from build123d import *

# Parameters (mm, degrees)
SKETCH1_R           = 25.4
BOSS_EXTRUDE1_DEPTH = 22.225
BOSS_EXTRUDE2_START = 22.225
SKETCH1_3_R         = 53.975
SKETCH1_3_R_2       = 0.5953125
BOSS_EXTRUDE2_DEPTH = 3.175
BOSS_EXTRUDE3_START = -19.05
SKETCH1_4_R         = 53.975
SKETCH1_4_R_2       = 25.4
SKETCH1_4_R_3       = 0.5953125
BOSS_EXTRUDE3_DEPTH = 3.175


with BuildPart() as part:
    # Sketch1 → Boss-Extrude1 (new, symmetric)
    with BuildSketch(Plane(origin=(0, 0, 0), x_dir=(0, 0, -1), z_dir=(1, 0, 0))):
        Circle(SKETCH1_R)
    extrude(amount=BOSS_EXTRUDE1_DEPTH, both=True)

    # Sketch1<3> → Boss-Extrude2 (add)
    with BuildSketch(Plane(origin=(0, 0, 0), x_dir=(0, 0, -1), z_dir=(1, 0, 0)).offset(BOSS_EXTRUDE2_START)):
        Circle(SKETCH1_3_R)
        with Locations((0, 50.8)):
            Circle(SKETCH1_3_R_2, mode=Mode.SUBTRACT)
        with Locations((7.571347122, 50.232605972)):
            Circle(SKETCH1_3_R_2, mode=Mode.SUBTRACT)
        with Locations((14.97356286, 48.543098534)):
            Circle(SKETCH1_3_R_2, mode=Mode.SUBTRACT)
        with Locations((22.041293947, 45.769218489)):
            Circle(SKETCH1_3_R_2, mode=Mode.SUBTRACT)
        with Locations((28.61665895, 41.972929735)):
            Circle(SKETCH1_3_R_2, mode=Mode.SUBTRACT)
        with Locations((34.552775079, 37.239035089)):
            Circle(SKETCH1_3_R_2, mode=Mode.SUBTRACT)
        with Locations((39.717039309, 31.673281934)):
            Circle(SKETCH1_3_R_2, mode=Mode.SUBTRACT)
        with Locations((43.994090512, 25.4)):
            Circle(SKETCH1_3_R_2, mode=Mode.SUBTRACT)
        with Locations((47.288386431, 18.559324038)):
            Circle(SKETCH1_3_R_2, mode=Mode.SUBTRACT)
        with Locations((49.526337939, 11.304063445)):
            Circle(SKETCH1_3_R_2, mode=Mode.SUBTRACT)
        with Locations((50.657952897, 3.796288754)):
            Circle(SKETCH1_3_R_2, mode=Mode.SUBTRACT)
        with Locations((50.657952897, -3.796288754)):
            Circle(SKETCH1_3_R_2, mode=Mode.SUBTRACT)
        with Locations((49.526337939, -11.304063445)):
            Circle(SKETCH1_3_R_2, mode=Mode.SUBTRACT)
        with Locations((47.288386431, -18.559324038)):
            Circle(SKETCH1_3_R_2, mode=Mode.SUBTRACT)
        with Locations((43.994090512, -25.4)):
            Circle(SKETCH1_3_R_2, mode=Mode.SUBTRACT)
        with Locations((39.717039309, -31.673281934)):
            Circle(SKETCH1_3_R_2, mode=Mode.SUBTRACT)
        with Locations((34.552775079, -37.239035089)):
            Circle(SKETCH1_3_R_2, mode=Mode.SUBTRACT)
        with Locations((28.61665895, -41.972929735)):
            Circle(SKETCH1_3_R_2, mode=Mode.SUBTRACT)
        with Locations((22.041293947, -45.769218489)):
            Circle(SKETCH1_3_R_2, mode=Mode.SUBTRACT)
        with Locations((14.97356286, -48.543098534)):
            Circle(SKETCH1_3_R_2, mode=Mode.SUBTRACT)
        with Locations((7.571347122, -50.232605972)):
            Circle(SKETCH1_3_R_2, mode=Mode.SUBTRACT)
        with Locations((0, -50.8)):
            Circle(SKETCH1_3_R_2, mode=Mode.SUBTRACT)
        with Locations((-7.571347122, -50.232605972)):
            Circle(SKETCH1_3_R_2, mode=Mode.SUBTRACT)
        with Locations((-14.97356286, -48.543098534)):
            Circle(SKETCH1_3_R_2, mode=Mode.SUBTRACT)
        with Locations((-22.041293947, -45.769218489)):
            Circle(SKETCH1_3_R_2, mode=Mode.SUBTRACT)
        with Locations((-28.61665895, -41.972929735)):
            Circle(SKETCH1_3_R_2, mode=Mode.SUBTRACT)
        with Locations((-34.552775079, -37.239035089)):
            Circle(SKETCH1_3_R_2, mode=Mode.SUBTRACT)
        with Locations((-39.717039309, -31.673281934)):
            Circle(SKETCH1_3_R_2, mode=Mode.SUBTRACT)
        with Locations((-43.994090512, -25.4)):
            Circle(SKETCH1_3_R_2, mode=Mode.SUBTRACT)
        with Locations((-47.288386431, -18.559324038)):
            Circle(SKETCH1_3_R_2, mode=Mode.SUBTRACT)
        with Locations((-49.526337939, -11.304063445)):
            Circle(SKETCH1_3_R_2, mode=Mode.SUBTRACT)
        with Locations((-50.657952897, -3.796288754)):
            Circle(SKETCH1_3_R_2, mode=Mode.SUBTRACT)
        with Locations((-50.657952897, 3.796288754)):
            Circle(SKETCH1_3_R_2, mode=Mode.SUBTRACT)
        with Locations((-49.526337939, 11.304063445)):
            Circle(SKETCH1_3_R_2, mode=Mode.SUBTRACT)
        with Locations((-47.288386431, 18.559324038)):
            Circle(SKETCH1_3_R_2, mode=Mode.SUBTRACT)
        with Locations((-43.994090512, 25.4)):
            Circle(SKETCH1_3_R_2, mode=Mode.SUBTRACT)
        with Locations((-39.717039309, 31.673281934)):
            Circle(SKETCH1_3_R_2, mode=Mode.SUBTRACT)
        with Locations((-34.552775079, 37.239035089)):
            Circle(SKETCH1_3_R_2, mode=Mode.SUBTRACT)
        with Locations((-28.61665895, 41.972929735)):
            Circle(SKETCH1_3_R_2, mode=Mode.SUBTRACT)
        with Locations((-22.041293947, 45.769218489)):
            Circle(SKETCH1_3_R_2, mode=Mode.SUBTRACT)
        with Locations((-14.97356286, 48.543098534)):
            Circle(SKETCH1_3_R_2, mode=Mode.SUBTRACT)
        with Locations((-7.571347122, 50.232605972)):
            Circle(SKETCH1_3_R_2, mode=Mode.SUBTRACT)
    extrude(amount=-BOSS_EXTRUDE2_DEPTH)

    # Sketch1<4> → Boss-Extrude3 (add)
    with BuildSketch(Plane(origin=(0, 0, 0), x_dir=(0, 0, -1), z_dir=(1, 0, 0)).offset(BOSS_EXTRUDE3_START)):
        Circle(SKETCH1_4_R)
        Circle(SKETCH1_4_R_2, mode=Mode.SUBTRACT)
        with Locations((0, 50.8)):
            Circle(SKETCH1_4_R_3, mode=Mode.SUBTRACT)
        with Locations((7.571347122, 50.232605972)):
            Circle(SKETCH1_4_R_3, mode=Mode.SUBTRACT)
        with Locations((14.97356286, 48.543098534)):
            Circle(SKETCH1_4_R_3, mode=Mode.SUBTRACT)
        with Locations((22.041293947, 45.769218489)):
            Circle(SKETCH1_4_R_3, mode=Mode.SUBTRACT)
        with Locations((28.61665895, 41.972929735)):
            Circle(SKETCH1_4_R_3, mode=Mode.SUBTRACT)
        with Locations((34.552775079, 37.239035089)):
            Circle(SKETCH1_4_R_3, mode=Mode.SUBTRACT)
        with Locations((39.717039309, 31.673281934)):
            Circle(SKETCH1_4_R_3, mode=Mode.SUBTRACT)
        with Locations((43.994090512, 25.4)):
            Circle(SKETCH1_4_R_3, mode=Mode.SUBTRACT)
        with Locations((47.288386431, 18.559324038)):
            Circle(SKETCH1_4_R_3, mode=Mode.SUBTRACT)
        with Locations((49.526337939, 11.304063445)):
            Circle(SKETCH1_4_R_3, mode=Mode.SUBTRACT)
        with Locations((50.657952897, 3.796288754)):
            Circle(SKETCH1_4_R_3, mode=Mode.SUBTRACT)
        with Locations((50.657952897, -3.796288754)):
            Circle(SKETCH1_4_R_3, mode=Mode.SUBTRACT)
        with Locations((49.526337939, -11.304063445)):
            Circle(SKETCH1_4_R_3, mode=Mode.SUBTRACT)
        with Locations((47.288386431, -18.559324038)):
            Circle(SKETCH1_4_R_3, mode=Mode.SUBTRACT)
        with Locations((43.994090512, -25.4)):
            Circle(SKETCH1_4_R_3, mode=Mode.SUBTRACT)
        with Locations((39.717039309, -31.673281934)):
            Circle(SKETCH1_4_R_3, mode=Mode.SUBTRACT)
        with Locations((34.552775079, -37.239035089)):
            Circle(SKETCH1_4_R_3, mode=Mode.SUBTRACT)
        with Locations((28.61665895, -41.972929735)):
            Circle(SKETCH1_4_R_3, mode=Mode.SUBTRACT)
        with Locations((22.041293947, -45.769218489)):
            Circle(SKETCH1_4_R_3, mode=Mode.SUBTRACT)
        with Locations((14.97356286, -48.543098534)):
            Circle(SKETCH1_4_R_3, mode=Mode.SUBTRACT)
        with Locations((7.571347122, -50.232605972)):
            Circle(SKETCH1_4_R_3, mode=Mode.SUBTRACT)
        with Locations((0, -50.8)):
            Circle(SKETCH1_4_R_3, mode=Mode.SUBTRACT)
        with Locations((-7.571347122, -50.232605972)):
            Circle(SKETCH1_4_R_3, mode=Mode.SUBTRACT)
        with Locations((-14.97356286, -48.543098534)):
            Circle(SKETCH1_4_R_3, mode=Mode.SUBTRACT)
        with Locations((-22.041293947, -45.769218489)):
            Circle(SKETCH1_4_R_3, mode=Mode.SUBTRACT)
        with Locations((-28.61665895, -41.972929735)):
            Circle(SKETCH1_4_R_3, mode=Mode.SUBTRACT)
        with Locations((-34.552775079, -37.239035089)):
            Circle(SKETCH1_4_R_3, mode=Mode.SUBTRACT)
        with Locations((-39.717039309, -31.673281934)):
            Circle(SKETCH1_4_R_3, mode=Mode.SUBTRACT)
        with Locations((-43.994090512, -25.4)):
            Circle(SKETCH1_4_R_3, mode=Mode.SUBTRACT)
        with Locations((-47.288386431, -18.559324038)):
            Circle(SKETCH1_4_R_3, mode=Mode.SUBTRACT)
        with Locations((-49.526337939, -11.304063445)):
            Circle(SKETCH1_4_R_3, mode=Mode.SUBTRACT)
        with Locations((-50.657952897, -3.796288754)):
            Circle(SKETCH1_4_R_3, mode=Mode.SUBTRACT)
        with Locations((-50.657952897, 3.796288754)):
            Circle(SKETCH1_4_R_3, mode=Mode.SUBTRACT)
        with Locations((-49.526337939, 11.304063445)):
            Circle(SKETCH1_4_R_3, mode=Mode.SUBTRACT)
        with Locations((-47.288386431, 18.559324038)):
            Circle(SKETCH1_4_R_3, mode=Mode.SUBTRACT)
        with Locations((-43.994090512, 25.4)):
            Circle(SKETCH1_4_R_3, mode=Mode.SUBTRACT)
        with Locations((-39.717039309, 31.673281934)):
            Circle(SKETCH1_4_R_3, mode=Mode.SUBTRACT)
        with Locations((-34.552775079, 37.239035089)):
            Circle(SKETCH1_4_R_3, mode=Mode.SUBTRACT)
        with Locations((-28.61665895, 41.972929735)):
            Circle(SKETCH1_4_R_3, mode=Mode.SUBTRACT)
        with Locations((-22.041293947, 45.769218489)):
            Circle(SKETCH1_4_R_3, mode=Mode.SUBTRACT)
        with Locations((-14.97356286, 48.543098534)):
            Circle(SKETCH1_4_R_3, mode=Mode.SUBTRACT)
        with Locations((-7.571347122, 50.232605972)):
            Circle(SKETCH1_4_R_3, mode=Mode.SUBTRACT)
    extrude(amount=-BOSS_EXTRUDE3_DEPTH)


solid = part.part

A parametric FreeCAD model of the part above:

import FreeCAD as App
import Part
import Sketcher
from FreeCAD import Vector
Q = App.Units.Quantity

doc = App.newDocument("Part")
body = doc.addObject("PartDesign::Body", "Body")

# Sketch on YZ plane
sketch1 = body.newObject("Sketcher::SketchObject", "Sketch")
sketch1.AttachmentSupport = (doc.getObject("YZ_Plane"), [""])
sketch1.MapMode = "FlatFace"
sketch1.addGeometry(Part.Circle(Vector(0, 0, 0), Vector(0, 0, 1), 25.4), False)
sketch1.addConstraint([
    Sketcher.Constraint("Coincident", 0, 3, -1, 1),
    Sketcher.Constraint("Diameter", 0, Q("2 in")),
])
pad1 = body.newObject("PartDesign::Pad", "Pad")
pad1.Profile = sketch1
pad1.Length = Q("1.75 in")
pad1.Midplane = True

# Sketch on YZ plane
sketch2 = body.newObject("Sketcher::SketchObject", "Sketch001")
sketch2.AttachmentSupport = (doc.getObject("YZ_Plane"), [""])
sketch2.MapMode = "FlatFace"
sketch2.AttachmentOffset = App.Placement(Vector(0, 0, 0.875 * 25.4), App.Rotation())
sketch2.addGeometry([
    Part.Circle(Vector(0, 0, 0), Vector(0, 0, 1), 53.975),  # 0
    Part.Circle(Vector(-41.97293, 28.616659, 0), Vector(0, 0, 1), 0.595313),  # 1
    Part.Circle(Vector(-31.673282, 39.717039, 0), Vector(0, 0, 1), 0.595313),  # 2
    Part.Circle(Vector(-37.239035, 34.552775, 0), Vector(0, 0, 1), 0.595313),  # 3
    Part.Circle(Vector(-45.769218, 22.041294, 0), Vector(0, 0, 1), 0.595313),  # 4
    Part.Circle(Vector(-48.543099, 14.973563, 0), Vector(0, 0, 1), 0.595313),  # 5
    Part.Circle(Vector(-50.232606, 7.571347, 0), Vector(0, 0, 1), 0.595313),  # 6
    Part.Circle(Vector(-50.8, 0, 0), Vector(0, 0, 1), 0.595313),  # 7
    Part.Circle(Vector(-25.4, 43.994091, 0), Vector(0, 0, 1), 0.595313),  # 8
    Part.Circle(Vector(-18.559324, 47.288386, 0), Vector(0, 0, 1), 0.595313),  # 9
    Part.Circle(Vector(-11.304063, 49.526338, 0), Vector(0, 0, 1), 0.595313),  # 10
    Part.Circle(Vector(-3.796289, 50.657953, 0), Vector(0, 0, 1), 0.595313),  # 11
    Part.Circle(Vector(-50.232606, -7.571347, 0), Vector(0, 0, 1), 0.595313),  # 12
    Part.Circle(Vector(-48.543099, -14.973563, 0), Vector(0, 0, 1), 0.595313),  # 13
    Part.Circle(Vector(-45.769218, -22.041294, 0), Vector(0, 0, 1), 0.595313),  # 14
    Part.Circle(Vector(-41.97293, -28.616659, 0), Vector(0, 0, 1), 0.595313),  # 15
    Part.Circle(Vector(-37.239035, -34.552775, 0), Vector(0, 0, 1), 0.595313),  # 16
    Part.Circle(Vector(-31.673282, -39.717039, 0), Vector(0, 0, 1), 0.595313),  # 17
    Part.Circle(Vector(-25.4, -43.994091, 0), Vector(0, 0, 1), 0.595313),  # 18
    Part.Circle(Vector(-18.559324, -47.288386, 0), Vector(0, 0, 1), 0.595313),  # 19
    Part.Circle(Vector(-11.304063, -49.526338, 0), Vector(0, 0, 1), 0.595313),  # 20
    Part.Circle(Vector(-3.796289, -50.657953, 0), Vector(0, 0, 1), 0.595313),  # 21
    Part.Circle(Vector(3.796289, 50.657953, 0), Vector(0, 0, 1), 0.595313),  # 22
    Part.Circle(Vector(11.304063, 49.526338, 0), Vector(0, 0, 1), 0.595313),  # 23
    Part.Circle(Vector(18.559324, 47.288386, 0), Vector(0, 0, 1), 0.595313),  # 24
    Part.Circle(Vector(25.4, 43.994091, 0), Vector(0, 0, 1), 0.595313),  # 25
    Part.Circle(Vector(31.673282, 39.717039, 0), Vector(0, 0, 1), 0.595313),  # 26
    Part.Circle(Vector(37.239035, 34.552775, 0), Vector(0, 0, 1), 0.595313),  # 27
    Part.Circle(Vector(41.97293, 28.616659, 0), Vector(0, 0, 1), 0.595313),  # 28
    Part.Circle(Vector(45.769218, 22.041294, 0), Vector(0, 0, 1), 0.595313),  # 29
    Part.Circle(Vector(48.543099, 14.973563, 0), Vector(0, 0, 1), 0.595313),  # 30
    Part.Circle(Vector(50.232606, 7.571347, 0), Vector(0, 0, 1), 0.595313),  # 31
    Part.Circle(Vector(50.8, 0, 0), Vector(0, 0, 1), 0.595313),  # 32
    Part.Circle(Vector(3.796289, -50.657953, 0), Vector(0, 0, 1), 0.595313),  # 33
    Part.Circle(Vector(11.304063, -49.526338, 0), Vector(0, 0, 1), 0.595313),  # 34
    Part.Circle(Vector(18.559324, -47.288386, 0), Vector(0, 0, 1), 0.595313),  # 35
    Part.Circle(Vector(25.4, -43.994091, 0), Vector(0, 0, 1), 0.595313),  # 36
    Part.Circle(Vector(50.232606, -7.571347, 0), Vector(0, 0, 1), 0.595313),  # 37
    Part.Circle(Vector(48.543099, -14.973563, 0), Vector(0, 0, 1), 0.595313),  # 38
    Part.Circle(Vector(45.769218, -22.041294, 0), Vector(0, 0, 1), 0.595313),  # 39
    Part.Circle(Vector(37.239035, -34.552775, 0), Vector(0, 0, 1), 0.595313),  # 40
    Part.Circle(Vector(31.673282, -39.717039, 0), Vector(0, 0, 1), 0.595313),  # 41
    Part.Circle(Vector(41.97293, -28.616659, 0), Vector(0, 0, 1), 0.595313),  # 42
], False)
sketch2.addConstraint([
    Sketcher.Constraint("Coincident", 0, 3, -1, 1),
    Sketcher.Constraint("Equal", 1, 2),
    Sketcher.Constraint("Equal", 2, 3),
    Sketcher.Constraint("Equal", 3, 4),
    Sketcher.Constraint("Equal", 4, 5),
    Sketcher.Constraint("Equal", 5, 6),
    Sketcher.Constraint("Equal", 6, 7),
    Sketcher.Constraint("Equal", 7, 8),
    Sketcher.Constraint("Equal", 8, 9),
    Sketcher.Constraint("Equal", 9, 10),
    Sketcher.Constraint("Equal", 10, 11),
    Sketcher.Constraint("Equal", 11, 12),
    Sketcher.Constraint("Equal", 12, 13),
    Sketcher.Constraint("Equal", 13, 14),
    Sketcher.Constraint("Equal", 14, 15),
    Sketcher.Constraint("Equal", 15, 16),
    Sketcher.Constraint("Equal", 16, 17),
    Sketcher.Constraint("Equal", 17, 18),
    Sketcher.Constraint("Equal", 18, 19),
    Sketcher.Constraint("Equal", 19, 20),
    Sketcher.Constraint("Equal", 20, 21),
    Sketcher.Constraint("Equal", 21, 22),
    Sketcher.Constraint("Equal", 22, 23),
    Sketcher.Constraint("Equal", 23, 24),
    Sketcher.Constraint("Equal", 24, 25),
    Sketcher.Constraint("Equal", 25, 26),
    Sketcher.Constraint("Equal", 26, 27),
    Sketcher.Constraint("Equal", 27, 28),
    Sketcher.Constraint("Equal", 28, 29),
    Sketcher.Constraint("Equal", 29, 30),
    Sketcher.Constraint("Equal", 30, 31),
    Sketcher.Constraint("Equal", 31, 32),
    Sketcher.Constraint("Equal", 32, 33),
    Sketcher.Constraint("Equal", 33, 34),
    Sketcher.Constraint("Equal", 34, 35),
    Sketcher.Constraint("Equal", 35, 36),
    Sketcher.Constraint("Equal", 36, 37),
    Sketcher.Constraint("Equal", 37, 38),
    Sketcher.Constraint("Equal", 38, 39),
    Sketcher.Constraint("Equal", 39, 40),
    Sketcher.Constraint("Equal", 40, 41),
    Sketcher.Constraint("Equal", 41, 42),
    Sketcher.Constraint("Symmetric", 21, 3, 22, 3, -1, 1),
    Sketcher.Constraint("Symmetric", 20, 3, 23, 3, -1, 1),
    Sketcher.Constraint("Symmetric", 19, 3, 24, 3, -1, 1),
    Sketcher.Constraint("Symmetric", 18, 3, 25, 3, -1, 1),
    Sketcher.Constraint("Symmetric", 17, 3, 26, 3, -1, 1),
    Sketcher.Constraint("Symmetric", 16, 3, 27, 3, -1, 1),
    Sketcher.Constraint("Symmetric", 15, 3, 28, 3, -1, 1),
    Sketcher.Constraint("Symmetric", 14, 3, 29, 3, -1, 1),
    Sketcher.Constraint("Symmetric", 13, 3, 30, 3, -1, 1),
    Sketcher.Constraint("Symmetric", 12, 3, 31, 3, -1, 1),
    Sketcher.Constraint("Symmetric", 7, 3, 32, 3, -1, 1),
    Sketcher.Constraint("Symmetric", 11, 3, 33, 3, -1, 1),
    Sketcher.Constraint("Symmetric", 10, 3, 34, 3, -1, 1),
    Sketcher.Constraint("Symmetric", 9, 3, 35, 3, -1, 1),
    Sketcher.Constraint("Symmetric", 8, 3, 36, 3, -1, 1),
    Sketcher.Constraint("Symmetric", 6, 3, 37, 3, -1, 1),
    Sketcher.Constraint("Symmetric", 5, 3, 38, 3, -1, 1),
    Sketcher.Constraint("Symmetric", 4, 3, 39, 3, -1, 1),
    Sketcher.Constraint("Symmetric", 3, 3, 40, 3, -1, 1),
    Sketcher.Constraint("Symmetric", 2, 3, 41, 3, -1, 1),
    Sketcher.Constraint("Symmetric", 1, 3, 42, 3, -1, 1),
    Sketcher.Constraint("Symmetric", 11, 3, 22, 3, -2),
    Sketcher.Constraint("Symmetric", 10, 3, 23, 3, -2),
    Sketcher.Constraint("Symmetric", 9, 3, 24, 3, -2),
    Sketcher.Constraint("Symmetric", 8, 3, 25, 3, -2),
    Sketcher.Constraint("Symmetric", 2, 3, 26, 3, -2),
    Sketcher.Constraint("Symmetric", 3, 3, 27, 3, -2),
    Sketcher.Constraint("Symmetric", 1, 3, 28, 3, -2),
    Sketcher.Constraint("Symmetric", 4, 3, 29, 3, -2),
    Sketcher.Constraint("Symmetric", 5, 3, 30, 3, -2),
    Sketcher.Constraint("Symmetric", 6, 3, 31, 3, -2),
    Sketcher.Constraint("PointOnObject", 7, 3, -1),
    Sketcher.Constraint("Diameter", 0, Q("4.25 in")),
    Sketcher.Constraint("Diameter", 1, Q("0.046875 in")),
    Sketcher.Constraint("DistanceX", 7, 3, -1, 1, Q("2 in")),
    Sketcher.Constraint("DistanceX", 8, 3, -1, 1, Q("1 in")),
    Sketcher.Constraint("DistanceX", 5, 3, -1, 1, Q("48.543099 mm")),
    Sketcher.Constraint("DistanceY", 2, 3, 10, 3, Q("9.809299 mm")),
    Sketcher.Constraint("DistanceX", 1, 3, -1, 1, Q("41.97293 mm")),
    Sketcher.Constraint("DistanceY", -1, 1, 1, 3, Q("28.616659 mm")),
    Sketcher.Constraint("DistanceX", 2, 3, -1, 1, Q("31.673282 mm")),
    Sketcher.Constraint("DistanceY", -1, 1, 2, 3, Q("39.717039 mm")),
    Sketcher.Constraint("DistanceX", 4, 3, -1, 1, Q("45.769218 mm")),
    Sketcher.Constraint("DistanceY", -1, 1, 8, 3, Q("43.994091 mm")),
    Sketcher.Constraint("DistanceX", 11, 3, -1, 1, Q("3.796289 mm")),
    Sketcher.Constraint("DistanceY", 4, 3, 3, 3, Q("12.511481 mm")),
    Sketcher.Constraint("DistanceY", 5, 3, 4, 3, Q("7.067731 mm")),
    Sketcher.Constraint("DistanceY", 6, 3, 1, 3, Q("21.045312 mm")),
    Sketcher.Constraint("DistanceX", 6, 3, 3, 3, Q("12.993571 mm")),
    Sketcher.Constraint("DistanceX", 3, 3, 9, 3, Q("18.679711 mm")),
    Sketcher.Constraint("DistanceY", 3, 3, 9, 3, Q("12.735611 mm")),
    Sketcher.Constraint("DistanceX", 9, 3, 10, 3, Q("7.255261 mm")),
    Sketcher.Constraint("DistanceY", 9, 3, 10, 3, Q("2.237952 mm")),
    Sketcher.Constraint("DistanceX", 2, 3, 10, 3, Q("20.369218 mm")),
    Sketcher.Constraint("DistanceY", -1, 1, 11, 3, Q("50.657953 mm")),
])
pad2 = body.newObject("PartDesign::Pad", "Pad001")
pad2.Profile = sketch2
pad2.Length = Q("0.125 in")
pad2.Reversed = True

# Sketch on YZ plane
sketch3 = body.newObject("Sketcher::SketchObject", "Sketch002")
sketch3.AttachmentSupport = (doc.getObject("YZ_Plane"), [""])
sketch3.MapMode = "FlatFace"
sketch3.AttachmentOffset = App.Placement(Vector(0, 0, -0.75 * 25.4), App.Rotation())
sketch3.addGeometry([
    Part.Circle(Vector(0, 0, 0), Vector(0, 0, 1), 53.975),  # 0
    Part.Circle(Vector(-41.97293, 28.616659, 0), Vector(0, 0, 1), 0.595313),  # 1
    Part.Circle(Vector(-31.673282, 39.717039, 0), Vector(0, 0, 1), 0.595313),  # 2
    Part.Circle(Vector(-37.239035, 34.552775, 0), Vector(0, 0, 1), 0.595313),  # 3
    Part.Circle(Vector(-45.769218, 22.041294, 0), Vector(0, 0, 1), 0.595313),  # 4
    Part.Circle(Vector(-48.543099, 14.973563, 0), Vector(0, 0, 1), 0.595313),  # 5
    Part.Circle(Vector(-50.232606, 7.571347, 0), Vector(0, 0, 1), 0.595313),  # 6
    Part.Circle(Vector(-50.8, 0, 0), Vector(0, 0, 1), 0.595313),  # 7
    Part.Circle(Vector(-25.4, 43.994091, 0), Vector(0, 0, 1), 0.595313),  # 8
    Part.Circle(Vector(-18.559324, 47.288386, 0), Vector(0, 0, 1), 0.595313),  # 9
    Part.Circle(Vector(-11.304063, 49.526338, 0), Vector(0, 0, 1), 0.595313),  # 10
    Part.Circle(Vector(-3.796289, 50.657953, 0), Vector(0, 0, 1), 0.595313),  # 11
    Part.Circle(Vector(-50.232606, -7.571347, 0), Vector(0, 0, 1), 0.595313),  # 12
    Part.Circle(Vector(-48.543099, -14.973563, 0), Vector(0, 0, 1), 0.595313),  # 13
    Part.Circle(Vector(-45.769218, -22.041294, 0), Vector(0, 0, 1), 0.595313),  # 14
    Part.Circle(Vector(-41.97293, -28.616659, 0), Vector(0, 0, 1), 0.595313),  # 15
    Part.Circle(Vector(-37.239035, -34.552775, 0), Vector(0, 0, 1), 0.595313),  # 16
    Part.Circle(Vector(-31.673282, -39.717039, 0), Vector(0, 0, 1), 0.595313),  # 17
    Part.Circle(Vector(-25.4, -43.994091, 0), Vector(0, 0, 1), 0.595313),  # 18
    Part.Circle(Vector(-18.559324, -47.288386, 0), Vector(0, 0, 1), 0.595313),  # 19
    Part.Circle(Vector(-11.304063, -49.526338, 0), Vector(0, 0, 1), 0.595313),  # 20
    Part.Circle(Vector(-3.796289, -50.657953, 0), Vector(0, 0, 1), 0.595313),  # 21
    Part.Circle(Vector(3.796289, 50.657953, 0), Vector(0, 0, 1), 0.595313),  # 22
    Part.Circle(Vector(11.304063, 49.526338, 0), Vector(0, 0, 1), 0.595313),  # 23
    Part.Circle(Vector(18.559324, 47.288386, 0), Vector(0, 0, 1), 0.595313),  # 24
    Part.Circle(Vector(25.4, 43.994091, 0), Vector(0, 0, 1), 0.595313),  # 25
    Part.Circle(Vector(31.673282, 39.717039, 0), Vector(0, 0, 1), 0.595313),  # 26
    Part.Circle(Vector(37.239035, 34.552775, 0), Vector(0, 0, 1), 0.595313),  # 27
    Part.Circle(Vector(41.97293, 28.616659, 0), Vector(0, 0, 1), 0.595313),  # 28
    Part.Circle(Vector(45.769218, 22.041294, 0), Vector(0, 0, 1), 0.595313),  # 29
    Part.Circle(Vector(48.543099, 14.973563, 0), Vector(0, 0, 1), 0.595313),  # 30
    Part.Circle(Vector(50.232606, 7.571347, 0), Vector(0, 0, 1), 0.595313),  # 31
    Part.Circle(Vector(50.8, 0, 0), Vector(0, 0, 1), 0.595313),  # 32
    Part.Circle(Vector(0, 0, 0), Vector(0, 0, 1), 25.4),  # 33
    Part.Circle(Vector(3.796289, -50.657953, 0), Vector(0, 0, 1), 0.595313),  # 34
    Part.Circle(Vector(11.304063, -49.526338, 0), Vector(0, 0, 1), 0.595313),  # 35
    Part.Circle(Vector(18.559324, -47.288386, 0), Vector(0, 0, 1), 0.595313),  # 36
    Part.Circle(Vector(25.4, -43.994091, 0), Vector(0, 0, 1), 0.595313),  # 37
    Part.Circle(Vector(50.232606, -7.571347, 0), Vector(0, 0, 1), 0.595313),  # 38
    Part.Circle(Vector(48.543099, -14.973563, 0), Vector(0, 0, 1), 0.595313),  # 39
    Part.Circle(Vector(45.769218, -22.041294, 0), Vector(0, 0, 1), 0.595313),  # 40
    Part.Circle(Vector(37.239035, -34.552775, 0), Vector(0, 0, 1), 0.595313),  # 41
    Part.Circle(Vector(31.673282, -39.717039, 0), Vector(0, 0, 1), 0.595313),  # 42
    Part.Circle(Vector(41.97293, -28.616659, 0), Vector(0, 0, 1), 0.595313),  # 43
], False)
sketch3.addConstraint([
    Sketcher.Constraint("Coincident", 0, 3, -1, 1),
    Sketcher.Constraint("Coincident", 33, 3, -1, 1),
    Sketcher.Constraint("Equal", 1, 2),
    Sketcher.Constraint("Equal", 2, 3),
    Sketcher.Constraint("Equal", 3, 4),
    Sketcher.Constraint("Equal", 4, 5),
    Sketcher.Constraint("Equal", 5, 6),
    Sketcher.Constraint("Equal", 6, 7),
    Sketcher.Constraint("Equal", 7, 8),
    Sketcher.Constraint("Equal", 8, 9),
    Sketcher.Constraint("Equal", 9, 10),
    Sketcher.Constraint("Equal", 10, 11),
    Sketcher.Constraint("Equal", 11, 12),
    Sketcher.Constraint("Equal", 12, 13),
    Sketcher.Constraint("Equal", 13, 14),
    Sketcher.Constraint("Equal", 14, 15),
    Sketcher.Constraint("Equal", 15, 16),
    Sketcher.Constraint("Equal", 16, 17),
    Sketcher.Constraint("Equal", 17, 18),
    Sketcher.Constraint("Equal", 18, 19),
    Sketcher.Constraint("Equal", 19, 20),
    Sketcher.Constraint("Equal", 20, 21),
    Sketcher.Constraint("Equal", 21, 22),
    Sketcher.Constraint("Equal", 22, 23),
    Sketcher.Constraint("Equal", 23, 24),
    Sketcher.Constraint("Equal", 24, 25),
    Sketcher.Constraint("Equal", 25, 26),
    Sketcher.Constraint("Equal", 26, 27),
    Sketcher.Constraint("Equal", 27, 28),
    Sketcher.Constraint("Equal", 28, 29),
    Sketcher.Constraint("Equal", 29, 30),
    Sketcher.Constraint("Equal", 30, 31),
    Sketcher.Constraint("Equal", 31, 32),
    Sketcher.Constraint("Equal", 32, 34),
    Sketcher.Constraint("Equal", 34, 35),
    Sketcher.Constraint("Equal", 35, 36),
    Sketcher.Constraint("Equal", 36, 37),
    Sketcher.Constraint("Equal", 37, 38),
    Sketcher.Constraint("Equal", 38, 39),
    Sketcher.Constraint("Equal", 39, 40),
    Sketcher.Constraint("Equal", 40, 41),
    Sketcher.Constraint("Equal", 41, 42),
    Sketcher.Constraint("Equal", 42, 43),
    Sketcher.Constraint("Symmetric", 21, 3, 22, 3, -1, 1),
    Sketcher.Constraint("Symmetric", 20, 3, 23, 3, -1, 1),
    Sketcher.Constraint("Symmetric", 19, 3, 24, 3, -1, 1),
    Sketcher.Constraint("Symmetric", 18, 3, 25, 3, -1, 1),
    Sketcher.Constraint("Symmetric", 17, 3, 26, 3, -1, 1),
    Sketcher.Constraint("Symmetric", 16, 3, 27, 3, -1, 1),
    Sketcher.Constraint("Symmetric", 15, 3, 28, 3, -1, 1),
    Sketcher.Constraint("Symmetric", 14, 3, 29, 3, -1, 1),
    Sketcher.Constraint("Symmetric", 13, 3, 30, 3, -1, 1),
    Sketcher.Constraint("Symmetric", 12, 3, 31, 3, -1, 1),
    Sketcher.Constraint("Symmetric", 7, 3, 32, 3, -1, 1),
    Sketcher.Constraint("Symmetric", 11, 3, 34, 3, -1, 1),
    Sketcher.Constraint("Symmetric", 10, 3, 35, 3, -1, 1),
    Sketcher.Constraint("Symmetric", 9, 3, 36, 3, -1, 1),
    Sketcher.Constraint("Symmetric", 8, 3, 37, 3, -1, 1),
    Sketcher.Constraint("Symmetric", 6, 3, 38, 3, -1, 1),
    Sketcher.Constraint("Symmetric", 5, 3, 39, 3, -1, 1),
    Sketcher.Constraint("Symmetric", 4, 3, 40, 3, -1, 1),
    Sketcher.Constraint("Symmetric", 3, 3, 41, 3, -1, 1),
    Sketcher.Constraint("Symmetric", 2, 3, 42, 3, -1, 1),
    Sketcher.Constraint("Symmetric", 1, 3, 43, 3, -1, 1),
    Sketcher.Constraint("Symmetric", 11, 3, 22, 3, -2),
    Sketcher.Constraint("Symmetric", 10, 3, 23, 3, -2),
    Sketcher.Constraint("Symmetric", 9, 3, 24, 3, -2),
    Sketcher.Constraint("Symmetric", 8, 3, 25, 3, -2),
    Sketcher.Constraint("Symmetric", 2, 3, 26, 3, -2),
    Sketcher.Constraint("Symmetric", 3, 3, 27, 3, -2),
    Sketcher.Constraint("Symmetric", 1, 3, 28, 3, -2),
    Sketcher.Constraint("Symmetric", 4, 3, 29, 3, -2),
    Sketcher.Constraint("Symmetric", 5, 3, 30, 3, -2),
    Sketcher.Constraint("Symmetric", 6, 3, 31, 3, -2),
    Sketcher.Constraint("PointOnObject", 7, 3, -1),
    Sketcher.Constraint("Diameter", 33, Q("2 in")),
    Sketcher.Constraint("Diameter", 0, Q("4.25 in")),
    Sketcher.Constraint("Diameter", 1, Q("0.046875 in")),
    Sketcher.Constraint("DistanceX", 7, 3, -1, 1, Q("2 in")),
    Sketcher.Constraint("DistanceX", 8, 3, -1, 1, Q("1 in")),
    Sketcher.Constraint("DistanceX", 5, 3, -1, 1, Q("48.543099 mm")),
    Sketcher.Constraint("DistanceY", 2, 3, 10, 3, Q("9.809299 mm")),
    Sketcher.Constraint("DistanceX", 1, 3, -1, 1, Q("41.97293 mm")),
    Sketcher.Constraint("DistanceY", -1, 1, 1, 3, Q("28.616659 mm")),
    Sketcher.Constraint("DistanceX", 2, 3, -1, 1, Q("31.673282 mm")),
    Sketcher.Constraint("DistanceY", -1, 1, 2, 3, Q("39.717039 mm")),
    Sketcher.Constraint("DistanceX", 4, 3, -1, 1, Q("45.769218 mm")),
    Sketcher.Constraint("DistanceY", -1, 1, 8, 3, Q("43.994091 mm")),
    Sketcher.Constraint("DistanceX", 11, 3, -1, 1, Q("3.796289 mm")),
    Sketcher.Constraint("DistanceY", 4, 3, 3, 3, Q("12.511481 mm")),
    Sketcher.Constraint("DistanceY", 5, 3, 4, 3, Q("7.067731 mm")),
    Sketcher.Constraint("DistanceY", 6, 3, 1, 3, Q("21.045312 mm")),
    Sketcher.Constraint("DistanceX", 6, 3, 3, 3, Q("12.993571 mm")),
    Sketcher.Constraint("DistanceX", 3, 3, 9, 3, Q("18.679711 mm")),
    Sketcher.Constraint("DistanceY", 3, 3, 9, 3, Q("12.735611 mm")),
    Sketcher.Constraint("DistanceX", 9, 3, 10, 3, Q("7.255261 mm")),
    Sketcher.Constraint("DistanceY", 9, 3, 10, 3, Q("2.237952 mm")),
    Sketcher.Constraint("DistanceX", 2, 3, 10, 3, Q("20.369218 mm")),
    Sketcher.Constraint("DistanceY", -1, 1, 11, 3, Q("50.657953 mm")),
])
pad3 = body.newObject("PartDesign::Pad", "Pad002")
pad3.Profile = sketch3
pad3.Length = Q("0.125 in")
pad3.Reversed = True

doc.recompute()
